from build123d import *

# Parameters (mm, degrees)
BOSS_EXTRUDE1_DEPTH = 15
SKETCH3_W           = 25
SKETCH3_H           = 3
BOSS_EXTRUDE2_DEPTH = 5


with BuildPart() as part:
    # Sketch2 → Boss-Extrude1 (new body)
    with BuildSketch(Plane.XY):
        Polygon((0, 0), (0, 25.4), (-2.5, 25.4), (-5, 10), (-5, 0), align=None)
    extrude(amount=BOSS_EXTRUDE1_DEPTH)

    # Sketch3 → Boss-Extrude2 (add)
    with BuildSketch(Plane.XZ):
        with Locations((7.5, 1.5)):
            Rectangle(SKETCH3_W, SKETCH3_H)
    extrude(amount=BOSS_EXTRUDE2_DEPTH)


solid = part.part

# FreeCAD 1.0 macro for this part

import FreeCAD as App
import Part
import Sketcher
Q = App.Units.Quantity


def add_polygon(sketch, points):
    """Adds a closed chain of lines whose ends are joined by coincident constraints."""
    first, n = sketch.GeometryCount, len(points)
    for a, b in zip(points, points[1:] + points[:1]):
        sketch.addGeometry(Part.LineSegment(App.Vector(*a, 0), App.Vector(*b, 0)), False)
    for i in range(n):
        sketch.addConstraint(Sketcher.Constraint("Coincident", first + i, 2, first + (i + 1) % n, 1))

doc = App.newDocument("Part")
body = doc.addObject("PartDesign::Body", "Body")

sketch1 = body.newObject("Sketcher::SketchObject", "Sketch")
sketch1.AttachmentSupport = (doc.getObject("XY_Plane"), [""])
sketch1.MapMode = "FlatFace"
add_polygon(sketch1, [(0, 0), (0, 25.4), (-2.5, 25.4), (-5, 10), (-5, 0)])
sketch1.addConstraint([
    Sketcher.Constraint("Vertical", 0),
    Sketcher.Constraint("Horizontal", 1),
    Sketcher.Constraint("Vertical", 3),
    Sketcher.Constraint("Horizontal", 4),
    Sketcher.Constraint("Coincident", 4, 2, -1, 1),
    Sketcher.Constraint("DistanceX", 4, 1, 4, 2, Q("5 mm")),
    Sketcher.Constraint("DistanceY", 3, 2, 3, 1, Q("10 mm")),
    Sketcher.Constraint("DistanceX", 1, 2, 1, 1, Q("2.5 mm")),
    Sketcher.Constraint("DistanceY", 0, 1, 0, 2, Q("25.4 mm")),
])
pad1 = body.newObject("PartDesign::Pad", "Pad")
pad1.Profile = sketch1
pad1.Length = 15

sketch2 = body.newObject("Sketcher::SketchObject", "Sketch001")
sketch2.AttachmentSupport = (doc.getObject("XZ_Plane"), [""])
sketch2.MapMode = "FlatFace"
add_polygon(sketch2, [(-5, 3), (-5, 0), (20, 0), (20, 3)])
sketch2.addConstraint([
    Sketcher.Constraint("Vertical", 0),
    Sketcher.Constraint("Horizontal", 1),
    Sketcher.Constraint("Vertical", 2),
    Sketcher.Constraint("Horizontal", 3),
    Sketcher.Constraint("PointOnObject", 0, 2, -1),
    Sketcher.Constraint("DistanceX", 1, 1, 1, 2, Q("25 mm")),
    Sketcher.Constraint("DistanceY", 0, 2, 0, 1, Q("3 mm")),
    Sketcher.Constraint("DistanceX", 0, 2, -1, 1, Q("5 mm")),
])
pad2 = body.newObject("PartDesign::Pad", "Pad001")
pad2.Profile = sketch2
pad2.Length = 5

doc.recompute()
